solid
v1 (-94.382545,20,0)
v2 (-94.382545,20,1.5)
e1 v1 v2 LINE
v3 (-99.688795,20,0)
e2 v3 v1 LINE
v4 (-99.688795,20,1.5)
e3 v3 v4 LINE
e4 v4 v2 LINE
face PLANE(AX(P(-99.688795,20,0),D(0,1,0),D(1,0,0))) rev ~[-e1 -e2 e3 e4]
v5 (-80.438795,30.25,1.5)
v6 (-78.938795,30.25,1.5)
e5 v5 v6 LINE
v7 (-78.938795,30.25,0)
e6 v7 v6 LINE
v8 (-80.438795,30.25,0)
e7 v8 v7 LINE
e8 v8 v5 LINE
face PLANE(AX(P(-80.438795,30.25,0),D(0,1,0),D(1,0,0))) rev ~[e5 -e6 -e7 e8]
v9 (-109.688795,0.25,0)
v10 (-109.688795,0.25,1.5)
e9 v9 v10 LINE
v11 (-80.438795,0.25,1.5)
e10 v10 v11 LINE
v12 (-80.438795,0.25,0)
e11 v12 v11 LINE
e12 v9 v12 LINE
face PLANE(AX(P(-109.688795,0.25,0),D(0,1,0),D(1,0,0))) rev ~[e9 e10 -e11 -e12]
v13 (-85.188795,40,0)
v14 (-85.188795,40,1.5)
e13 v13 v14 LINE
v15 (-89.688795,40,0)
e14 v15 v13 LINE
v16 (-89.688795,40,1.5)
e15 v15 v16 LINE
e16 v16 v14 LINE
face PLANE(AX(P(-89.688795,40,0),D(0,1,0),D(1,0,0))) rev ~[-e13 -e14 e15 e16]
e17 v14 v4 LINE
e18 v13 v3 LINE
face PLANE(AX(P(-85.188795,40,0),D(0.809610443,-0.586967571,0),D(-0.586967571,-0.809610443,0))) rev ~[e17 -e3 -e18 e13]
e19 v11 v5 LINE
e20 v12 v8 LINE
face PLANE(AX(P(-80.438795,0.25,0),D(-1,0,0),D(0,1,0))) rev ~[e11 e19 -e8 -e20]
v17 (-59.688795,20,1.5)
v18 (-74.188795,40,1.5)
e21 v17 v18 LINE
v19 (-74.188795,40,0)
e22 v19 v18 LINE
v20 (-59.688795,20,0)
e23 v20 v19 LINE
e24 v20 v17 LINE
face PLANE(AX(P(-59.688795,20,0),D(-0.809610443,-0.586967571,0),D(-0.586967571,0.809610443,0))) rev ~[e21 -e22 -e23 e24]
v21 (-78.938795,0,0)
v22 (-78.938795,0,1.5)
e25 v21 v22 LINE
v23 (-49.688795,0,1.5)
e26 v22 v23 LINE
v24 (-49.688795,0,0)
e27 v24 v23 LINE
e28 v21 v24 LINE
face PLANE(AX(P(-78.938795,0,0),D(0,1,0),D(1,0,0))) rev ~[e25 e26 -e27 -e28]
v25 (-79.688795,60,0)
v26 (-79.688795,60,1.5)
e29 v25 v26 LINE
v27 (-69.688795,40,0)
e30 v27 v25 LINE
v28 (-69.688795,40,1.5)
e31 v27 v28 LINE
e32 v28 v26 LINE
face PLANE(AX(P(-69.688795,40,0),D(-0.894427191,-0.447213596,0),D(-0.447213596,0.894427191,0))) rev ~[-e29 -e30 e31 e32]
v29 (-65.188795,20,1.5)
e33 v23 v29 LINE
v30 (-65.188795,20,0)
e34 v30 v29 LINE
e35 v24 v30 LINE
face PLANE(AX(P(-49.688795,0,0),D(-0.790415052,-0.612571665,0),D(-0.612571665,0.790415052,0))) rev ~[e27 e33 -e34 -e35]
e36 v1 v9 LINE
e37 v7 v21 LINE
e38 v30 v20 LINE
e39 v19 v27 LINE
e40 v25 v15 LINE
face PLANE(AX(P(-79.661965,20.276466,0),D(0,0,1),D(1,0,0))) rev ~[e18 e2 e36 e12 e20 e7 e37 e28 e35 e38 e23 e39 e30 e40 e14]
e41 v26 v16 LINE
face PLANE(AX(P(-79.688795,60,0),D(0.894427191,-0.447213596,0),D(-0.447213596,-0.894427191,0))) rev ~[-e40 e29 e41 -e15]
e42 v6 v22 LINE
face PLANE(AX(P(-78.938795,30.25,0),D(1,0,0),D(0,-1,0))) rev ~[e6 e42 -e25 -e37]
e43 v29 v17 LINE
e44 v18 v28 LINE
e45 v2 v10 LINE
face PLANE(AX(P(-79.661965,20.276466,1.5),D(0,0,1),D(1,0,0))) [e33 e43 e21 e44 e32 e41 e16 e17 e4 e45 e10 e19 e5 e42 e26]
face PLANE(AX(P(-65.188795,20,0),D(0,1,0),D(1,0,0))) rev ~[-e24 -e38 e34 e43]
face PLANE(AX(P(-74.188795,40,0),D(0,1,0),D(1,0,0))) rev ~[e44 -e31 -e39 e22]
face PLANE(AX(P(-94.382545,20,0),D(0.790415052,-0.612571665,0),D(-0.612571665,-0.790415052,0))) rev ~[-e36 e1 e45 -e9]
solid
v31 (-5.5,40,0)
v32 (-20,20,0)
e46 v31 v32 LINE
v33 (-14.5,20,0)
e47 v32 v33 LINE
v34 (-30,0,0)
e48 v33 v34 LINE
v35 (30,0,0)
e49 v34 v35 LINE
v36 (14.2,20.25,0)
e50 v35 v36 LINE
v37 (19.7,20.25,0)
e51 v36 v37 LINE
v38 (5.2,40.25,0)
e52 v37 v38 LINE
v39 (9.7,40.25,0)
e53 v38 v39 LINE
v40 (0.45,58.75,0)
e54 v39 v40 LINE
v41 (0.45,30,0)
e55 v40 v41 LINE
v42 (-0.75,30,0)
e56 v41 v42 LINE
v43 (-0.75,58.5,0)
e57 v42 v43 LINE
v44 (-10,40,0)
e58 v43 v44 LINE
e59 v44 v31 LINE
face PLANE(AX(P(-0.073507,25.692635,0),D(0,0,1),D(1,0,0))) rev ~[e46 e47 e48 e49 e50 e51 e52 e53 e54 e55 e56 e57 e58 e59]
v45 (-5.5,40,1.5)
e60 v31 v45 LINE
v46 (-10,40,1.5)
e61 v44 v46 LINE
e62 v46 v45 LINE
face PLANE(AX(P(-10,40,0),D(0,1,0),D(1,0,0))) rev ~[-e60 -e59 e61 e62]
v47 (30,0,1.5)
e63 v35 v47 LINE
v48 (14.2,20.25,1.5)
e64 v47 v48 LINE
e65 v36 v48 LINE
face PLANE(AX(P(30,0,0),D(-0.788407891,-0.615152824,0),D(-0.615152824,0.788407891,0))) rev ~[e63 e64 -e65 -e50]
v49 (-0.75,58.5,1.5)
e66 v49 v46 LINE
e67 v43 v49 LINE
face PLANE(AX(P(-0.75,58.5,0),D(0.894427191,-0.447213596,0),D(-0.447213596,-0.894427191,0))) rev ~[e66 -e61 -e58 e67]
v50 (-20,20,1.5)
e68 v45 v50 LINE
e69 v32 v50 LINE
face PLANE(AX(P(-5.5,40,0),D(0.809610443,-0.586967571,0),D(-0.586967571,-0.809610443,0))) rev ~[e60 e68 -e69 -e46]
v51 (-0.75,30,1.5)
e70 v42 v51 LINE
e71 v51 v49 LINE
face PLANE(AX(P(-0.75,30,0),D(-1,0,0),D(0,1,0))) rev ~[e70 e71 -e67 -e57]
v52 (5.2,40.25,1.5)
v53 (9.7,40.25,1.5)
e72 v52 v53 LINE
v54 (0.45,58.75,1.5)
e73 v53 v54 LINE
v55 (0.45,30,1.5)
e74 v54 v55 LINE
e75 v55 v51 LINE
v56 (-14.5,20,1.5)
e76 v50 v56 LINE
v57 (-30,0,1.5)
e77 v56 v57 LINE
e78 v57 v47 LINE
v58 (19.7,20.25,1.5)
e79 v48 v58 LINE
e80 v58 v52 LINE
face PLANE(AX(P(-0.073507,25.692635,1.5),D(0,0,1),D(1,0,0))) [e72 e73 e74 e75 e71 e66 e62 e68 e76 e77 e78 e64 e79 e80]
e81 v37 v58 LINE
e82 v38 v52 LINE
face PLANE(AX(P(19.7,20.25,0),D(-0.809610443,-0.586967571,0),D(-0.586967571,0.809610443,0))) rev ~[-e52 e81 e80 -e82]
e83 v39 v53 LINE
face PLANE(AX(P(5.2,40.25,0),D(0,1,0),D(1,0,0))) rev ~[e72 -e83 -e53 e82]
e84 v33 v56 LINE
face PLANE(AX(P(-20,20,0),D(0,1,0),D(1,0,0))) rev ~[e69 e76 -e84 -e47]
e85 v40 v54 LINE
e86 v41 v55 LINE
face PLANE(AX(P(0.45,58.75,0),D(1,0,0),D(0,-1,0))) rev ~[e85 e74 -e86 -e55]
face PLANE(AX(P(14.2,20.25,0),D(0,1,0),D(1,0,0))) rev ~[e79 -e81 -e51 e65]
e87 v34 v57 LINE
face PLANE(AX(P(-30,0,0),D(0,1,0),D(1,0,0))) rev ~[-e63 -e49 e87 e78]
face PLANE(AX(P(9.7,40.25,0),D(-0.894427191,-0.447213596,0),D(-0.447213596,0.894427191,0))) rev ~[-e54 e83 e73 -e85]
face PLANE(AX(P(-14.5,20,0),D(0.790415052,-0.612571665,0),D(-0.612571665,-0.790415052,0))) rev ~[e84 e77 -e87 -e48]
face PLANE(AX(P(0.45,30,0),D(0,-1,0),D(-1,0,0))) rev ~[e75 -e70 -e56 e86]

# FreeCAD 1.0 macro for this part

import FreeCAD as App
import Part
import Sketcher

doc = App.newDocument("Part")
body = doc.addObject("PartDesign::Body", "Body")
body.AllowCompound = True

# Sketch on XY plane
sketch1 = doc.addObject("Sketcher::SketchObject", "Sketch")
body.addObject(sketch1)
sketch1.AttachmentSupport = (doc.XY_Plane, [""])
sketch1.MapMode = "FlatFace"
sketch1.addGeometry([
    Part.LineSegment(App.Vector(-69.7, 40, 0), App.Vector(-79.7, 60, 0)),  # 0
    Part.LineSegment(App.Vector(-79.7, 60, 0), App.Vector(-89.7, 40, 0)),  # 1
    Part.LineSegment(App.Vector(-89.7, 40, 0), App.Vector(-85.2, 40, 0)),  # 2
    Part.LineSegment(App.Vector(-85.2, 40, 0), App.Vector(-99.7, 20, 0)),  # 3
    Part.LineSegment(App.Vector(-99.7, 20, 0), App.Vector(-94.4, 20, 0)),  # 4
    Part.LineSegment(App.Vector(-94.4, 20, 0), App.Vector(-109.7, 0.2, 0)),  # 5
    Part.LineSegment(App.Vector(-109.7, 0.2, 0), App.Vector(-80.4, 0.2, 0)),  # 6
    Part.LineSegment(App.Vector(-80.4, 0.2, 0), App.Vector(-80.4, 30.2, 0)),  # 7
    Part.LineSegment(App.Vector(-80.4, 30.2, 0), App.Vector(-78.9, 30.2, 0)),  # 8
    Part.LineSegment(App.Vector(-78.9, 30.2, 0), App.Vector(-78.9, 0, 0)),  # 9
    Part.LineSegment(App.Vector(-78.9, 0, 0), App.Vector(-49.7, 0, 0)),  # 10
    Part.LineSegment(App.Vector(-49.7, 0, 0), App.Vector(-65.2, 20, 0)),  # 11
    Part.LineSegment(App.Vector(-65.2, 20, 0), App.Vector(-59.7, 20, 0)),  # 12
    Part.LineSegment(App.Vector(-59.7, 20, 0), App.Vector(-74.2, 40, 0)),  # 13
    Part.LineSegment(App.Vector(-74.2, 40, 0), App.Vector(-69.7, 40, 0)),  # 14
    Part.LineSegment(App.Vector(-30, 0, 0), App.Vector(30, 0, 0)),  # 15
    Part.LineSegment(App.Vector(30, 0, 0), App.Vector(14.2, 20.2, 0)),  # 16
    Part.LineSegment(App.Vector(14.2, 20.2, 0), App.Vector(19.7, 20.2, 0)),  # 17
    Part.LineSegment(App.Vector(19.7, 20.2, 0), App.Vector(5.2, 40.2, 0)),  # 18
    Part.LineSegment(App.Vector(5.2, 40.2, 0), App.Vector(9.7, 40.2, 0)),  # 19
    Part.LineSegment(App.Vector(9.7, 40.2, 0), App.Vector(0.5, 58.8, 0)),  # 20
    Part.LineSegment(App.Vector(0.5, 58.8, 0), App.Vector(0.5, 30, 0)),  # 21
    Part.LineSegment(App.Vector(0.5, 30, 0), App.Vector(-0.8, 30, 0)),  # 22
    Part.LineSegment(App.Vector(-0.8, 30, 0), App.Vector(-0.8, 58.5, 0)),  # 23
    Part.LineSegment(App.Vector(-0.8, 58.5, 0), App.Vector(-10, 40, 0)),  # 24
    Part.LineSegment(App.Vector(-10, 40, 0), App.Vector(-5.5, 40, 0)),  # 25
    Part.LineSegment(App.Vector(-5.5, 40, 0), App.Vector(-20, 20, 0)),  # 26
    Part.LineSegment(App.Vector(-20, 20, 0), App.Vector(-14.5, 20, 0)),  # 27
    Part.LineSegment(App.Vector(-14.5, 20, 0), App.Vector(-30, 0, 0)),  # 28
], False)
sketch1.addConstraint([
    Sketcher.Constraint("Coincident", 0, 2, 1, 1),
    Sketcher.Constraint("Coincident", 1, 2, 2, 1),
    Sketcher.Constraint("Coincident", 2, 2, 3, 1),
    Sketcher.Constraint("Coincident", 3, 2, 4, 1),
    Sketcher.Constraint("Coincident", 4, 2, 5, 1),
    Sketcher.Constraint("Coincident", 5, 2, 6, 1),
    Sketcher.Constraint("Coincident", 6, 2, 7, 1),
    Sketcher.Constraint("Coincident", 7, 2, 8, 1),
    Sketcher.Constraint("Coincident", 8, 2, 9, 1),
    Sketcher.Constraint("Coincident", 9, 2, 10, 1),
    Sketcher.Constraint("Coincident", 10, 2, 11, 1),
    Sketcher.Constraint("Coincident", 11, 2, 12, 1),
    Sketcher.Constraint("Coincident", 12, 2, 13, 1),
    Sketcher.Constraint("Coincident", 13, 2, 14, 1),
    Sketcher.Constraint("Coincident", 14, 2, 0, 1),
    Sketcher.Constraint("Coincident", 15, 2, 16, 1),
    Sketcher.Constraint("Coincident", 16, 2, 17, 1),
    Sketcher.Constraint("Coincident", 17, 2, 18, 1),
    Sketcher.Constraint("Coincident", 18, 2, 19, 1),
    Sketcher.Constraint("Coincident", 19, 2, 20, 1),
    Sketcher.Constraint("Coincident", 20, 2, 21, 1),
    Sketcher.Constraint("Coincident", 21, 2, 22, 1),
    Sketcher.Constraint("Coincident", 22, 2, 23, 1),
    Sketcher.Constraint("Coincident", 23, 2, 24, 1),
    Sketcher.Constraint("Coincident", 24, 2, 25, 1),
    Sketcher.Constraint("Coincident", 25, 2, 26, 1),
    Sketcher.Constraint("Coincident", 26, 2, 27, 1),
    Sketcher.Constraint("Coincident", 27, 2, 28, 1),
    Sketcher.Constraint("Coincident", 28, 2, 15, 1),
    Sketcher.Constraint("Horizontal", 2),
    Sketcher.Constraint("Horizontal", 4),
    Sketcher.Constraint("Horizontal", 6),
    Sketcher.Constraint("Vertical", 7),
    Sketcher.Constraint("Horizontal", 8),
    Sketcher.Constraint("Vertical", 9),
    Sketcher.Constraint("Horizontal", 10),
    Sketcher.Constraint("Horizontal", 12),
    Sketcher.Constraint("Horizontal", 14),
    Sketcher.Constraint("Horizontal", 15),
    Sketcher.Constraint("Horizontal", 17),
    Sketcher.Constraint("Horizontal", 19),
    Sketcher.Constraint("Vertical", 21),
    Sketcher.Constraint("Horizontal", 22),
    Sketcher.Constraint("Vertical", 23),
    Sketcher.Constraint("Horizontal", 25),
    Sketcher.Constraint("Horizontal", 27),
    Sketcher.Constraint("Symmetric", 15, 2, 28, 2, -1, 1),
    Sketcher.Constraint("PointOnObject", 9, 2, -1),
    Sketcher.Constraint("Parallel", 13, 18),
    Sketcher.Constraint("Parallel", 0, 20),
    Sketcher.Constraint("Parallel", 1, 24),
    Sketcher.Constraint("Parallel", 3, 26),
    Sketcher.Constraint("Parallel", 5, 28),
    Sketcher.Constraint("Horizontal", 4, 2, 11, 2),
    Sketcher.Constraint("Horizontal", 2, 2, 13, 2),
    Sketcher.Constraint("Horizontal", 14, 2, 24, 2),
    Sketcher.Constraint("Horizontal", 12, 2, 26, 2),
    Sketcher.Constraint("Equal", 6, 10),
    Sketcher.Constraint("Equal", 2, 14),
    Sketcher.Constraint("Equal", 12, 17),
    Sketcher.Constraint("Equal", 14, 19),
    Sketcher.Constraint("Equal", 19, 25),
    Sketcher.Constraint("Equal", 17, 27),
    Sketcher.Constraint("Equal", 0, 1),
    Sketcher.Constraint("Equal", 3, 13),
    Sketcher.Constraint("Equal", 13, 18),
    Sketcher.Constraint("Equal", 20, 24),
    Sketcher.Constraint("Equal", 11, 28),
    Sketcher.Constraint("DistanceX", 15, 1, 15, 2, 60.0),
    Sketcher.Constraint("DistanceY", 7, 1, 7, 2, 30.0),
    Sketcher.Constraint("DistanceX", 2, 1, 2, 2, 4.5),
    Sketcher.Constraint("DistanceX", 8, 1, 8, 2, 1.5),
    Sketcher.Constraint("DistanceX", 12, 1, 12, 2, 5.5),
    Sketcher.Constraint("DistanceX", 22, 2, 22, 1, 1.2),
    Sketcher.Constraint("DistanceY", 23, 1, 23, 2, 28.5),
    Sketcher.Constraint("DistanceY", -1, 1, 0, 2, 60.0),
    Sketcher.Constraint("DistanceY", -1, 1, 1, 2, 40.0),
    Sketcher.Constraint("DistanceY", -1, 1, 3, 2, 20.0),
    Sketcher.Constraint("DistanceY", -1, 1, 21, 2, 30.0),
    Sketcher.Constraint("DistanceX", 24, 2, -1, 1, 10.0),
    Sketcher.Constraint("DistanceX", 26, 2, -1, 1, 20.0),
    Sketcher.Constraint("DistanceX", 1, 2, 0, 2, 10.0),
    Sketcher.Constraint("DistanceX", 5, 2, 3, 2, 10.0),
    Sketcher.Constraint("DistanceY", 9, 2, 9, 1, 30.25),
    Sketcher.Constraint("DistanceY", 21, 2, 21, 1, 28.75),
    Sketcher.Constraint("DistanceX", 0, 2, -1, 1, 79.688795),
])
pad1 = doc.addObject("PartDesign::Pad", "Pad")
body.addObject(pad1)
pad1.Profile = sketch1
pad1.Length = 1.5

doc.recompute()
